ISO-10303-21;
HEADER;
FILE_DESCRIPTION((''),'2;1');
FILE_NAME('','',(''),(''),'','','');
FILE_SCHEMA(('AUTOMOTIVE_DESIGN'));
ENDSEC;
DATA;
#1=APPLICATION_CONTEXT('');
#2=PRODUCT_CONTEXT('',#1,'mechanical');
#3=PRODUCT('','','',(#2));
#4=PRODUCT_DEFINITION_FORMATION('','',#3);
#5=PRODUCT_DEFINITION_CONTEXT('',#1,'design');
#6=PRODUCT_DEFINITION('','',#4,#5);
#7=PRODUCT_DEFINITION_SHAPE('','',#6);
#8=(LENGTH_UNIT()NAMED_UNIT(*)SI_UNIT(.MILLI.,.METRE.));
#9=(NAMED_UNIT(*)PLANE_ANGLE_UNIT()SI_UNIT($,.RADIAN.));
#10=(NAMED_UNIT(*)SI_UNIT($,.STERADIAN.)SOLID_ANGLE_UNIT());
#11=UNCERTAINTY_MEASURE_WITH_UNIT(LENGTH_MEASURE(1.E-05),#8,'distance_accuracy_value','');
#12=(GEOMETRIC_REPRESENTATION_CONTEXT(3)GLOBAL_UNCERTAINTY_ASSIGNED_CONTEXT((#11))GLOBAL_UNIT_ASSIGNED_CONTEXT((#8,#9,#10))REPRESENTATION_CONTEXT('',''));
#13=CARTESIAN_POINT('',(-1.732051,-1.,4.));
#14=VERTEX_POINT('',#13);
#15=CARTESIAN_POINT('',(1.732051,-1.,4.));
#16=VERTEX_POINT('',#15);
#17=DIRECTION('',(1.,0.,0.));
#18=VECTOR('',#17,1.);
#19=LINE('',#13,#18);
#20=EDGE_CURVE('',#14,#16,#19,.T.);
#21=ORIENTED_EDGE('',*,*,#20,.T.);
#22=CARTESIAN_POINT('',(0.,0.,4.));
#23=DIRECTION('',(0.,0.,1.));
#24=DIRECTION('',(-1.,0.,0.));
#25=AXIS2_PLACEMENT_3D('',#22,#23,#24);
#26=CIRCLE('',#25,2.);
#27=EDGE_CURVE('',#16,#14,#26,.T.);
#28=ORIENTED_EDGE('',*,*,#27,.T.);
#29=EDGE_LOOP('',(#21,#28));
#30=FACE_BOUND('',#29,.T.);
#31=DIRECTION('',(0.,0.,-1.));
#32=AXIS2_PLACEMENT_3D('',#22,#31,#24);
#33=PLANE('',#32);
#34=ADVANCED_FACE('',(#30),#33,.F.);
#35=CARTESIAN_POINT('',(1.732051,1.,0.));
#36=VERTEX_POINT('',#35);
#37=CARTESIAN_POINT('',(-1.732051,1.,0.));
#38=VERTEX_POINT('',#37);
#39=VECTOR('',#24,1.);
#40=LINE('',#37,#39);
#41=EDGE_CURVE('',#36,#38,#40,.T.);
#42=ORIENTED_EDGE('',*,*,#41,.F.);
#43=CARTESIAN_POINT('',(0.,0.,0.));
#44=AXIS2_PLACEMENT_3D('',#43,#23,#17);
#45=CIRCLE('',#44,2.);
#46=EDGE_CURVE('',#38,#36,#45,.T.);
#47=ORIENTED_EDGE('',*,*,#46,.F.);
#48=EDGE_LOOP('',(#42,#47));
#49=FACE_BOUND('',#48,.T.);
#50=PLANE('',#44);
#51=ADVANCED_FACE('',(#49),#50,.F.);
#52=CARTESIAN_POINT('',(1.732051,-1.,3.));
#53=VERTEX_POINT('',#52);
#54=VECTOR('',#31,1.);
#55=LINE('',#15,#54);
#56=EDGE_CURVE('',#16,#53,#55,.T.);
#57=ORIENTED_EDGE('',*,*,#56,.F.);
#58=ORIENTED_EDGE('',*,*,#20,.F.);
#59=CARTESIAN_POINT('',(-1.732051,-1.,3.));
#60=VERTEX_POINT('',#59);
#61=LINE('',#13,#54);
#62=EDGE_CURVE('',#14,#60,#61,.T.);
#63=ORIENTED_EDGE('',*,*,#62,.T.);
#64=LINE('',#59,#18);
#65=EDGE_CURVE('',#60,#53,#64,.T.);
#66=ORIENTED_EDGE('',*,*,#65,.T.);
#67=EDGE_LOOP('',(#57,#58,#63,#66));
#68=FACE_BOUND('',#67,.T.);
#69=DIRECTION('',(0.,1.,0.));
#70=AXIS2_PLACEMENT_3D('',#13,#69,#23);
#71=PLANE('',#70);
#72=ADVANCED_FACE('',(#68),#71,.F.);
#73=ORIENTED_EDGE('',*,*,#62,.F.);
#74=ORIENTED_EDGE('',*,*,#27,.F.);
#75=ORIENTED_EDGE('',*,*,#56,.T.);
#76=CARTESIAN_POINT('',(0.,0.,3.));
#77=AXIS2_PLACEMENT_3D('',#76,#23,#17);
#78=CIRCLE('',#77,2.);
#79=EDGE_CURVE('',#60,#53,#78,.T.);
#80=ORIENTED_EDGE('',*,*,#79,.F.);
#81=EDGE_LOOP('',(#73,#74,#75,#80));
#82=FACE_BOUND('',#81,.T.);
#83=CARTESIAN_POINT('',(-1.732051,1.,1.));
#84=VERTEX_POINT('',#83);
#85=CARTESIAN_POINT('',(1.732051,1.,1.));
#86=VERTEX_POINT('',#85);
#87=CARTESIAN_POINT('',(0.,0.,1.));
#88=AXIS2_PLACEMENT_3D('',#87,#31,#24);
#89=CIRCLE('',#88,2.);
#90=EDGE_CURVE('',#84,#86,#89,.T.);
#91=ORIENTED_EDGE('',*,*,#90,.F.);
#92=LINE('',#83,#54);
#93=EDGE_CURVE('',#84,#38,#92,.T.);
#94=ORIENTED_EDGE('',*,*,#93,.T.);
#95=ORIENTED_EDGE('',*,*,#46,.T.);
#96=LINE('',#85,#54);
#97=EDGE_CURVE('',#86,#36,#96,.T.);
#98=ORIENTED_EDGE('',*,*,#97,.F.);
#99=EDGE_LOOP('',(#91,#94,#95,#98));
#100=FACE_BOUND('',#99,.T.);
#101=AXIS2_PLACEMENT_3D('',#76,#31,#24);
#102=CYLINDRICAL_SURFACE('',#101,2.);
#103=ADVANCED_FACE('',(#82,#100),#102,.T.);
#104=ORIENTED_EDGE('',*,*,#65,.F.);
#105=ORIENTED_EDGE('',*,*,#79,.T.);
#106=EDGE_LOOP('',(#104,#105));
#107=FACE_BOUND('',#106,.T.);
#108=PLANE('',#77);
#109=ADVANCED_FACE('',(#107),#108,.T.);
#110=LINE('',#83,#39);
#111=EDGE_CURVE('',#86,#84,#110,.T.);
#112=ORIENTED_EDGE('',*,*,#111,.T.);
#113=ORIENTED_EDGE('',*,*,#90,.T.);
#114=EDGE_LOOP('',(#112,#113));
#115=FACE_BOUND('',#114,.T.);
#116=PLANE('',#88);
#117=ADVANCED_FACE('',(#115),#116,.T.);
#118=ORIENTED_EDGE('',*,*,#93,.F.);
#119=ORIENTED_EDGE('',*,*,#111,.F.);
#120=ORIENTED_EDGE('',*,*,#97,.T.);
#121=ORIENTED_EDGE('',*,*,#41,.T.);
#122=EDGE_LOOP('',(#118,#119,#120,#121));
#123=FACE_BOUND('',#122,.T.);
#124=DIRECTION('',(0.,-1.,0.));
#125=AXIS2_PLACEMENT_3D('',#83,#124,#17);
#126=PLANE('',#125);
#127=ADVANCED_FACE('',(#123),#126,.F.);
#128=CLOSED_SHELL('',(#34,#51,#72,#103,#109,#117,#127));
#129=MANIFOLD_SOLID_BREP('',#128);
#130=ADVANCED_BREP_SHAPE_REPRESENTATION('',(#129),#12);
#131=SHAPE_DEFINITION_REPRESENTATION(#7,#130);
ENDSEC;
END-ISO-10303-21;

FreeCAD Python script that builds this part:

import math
import FreeCAD as App
import Part
import Sketcher
from FreeCAD import Vector

doc = App.newDocument("Part")
body = doc.addObject("PartDesign::Body", "Body")

# Sketch on XY plane
sketch1 = body.newObject("Sketcher::SketchObject", "Sketch")
sketch1.AttachmentSupport = (doc.getObject("XY_Plane"), [""])
sketch1.MapMode = "FlatFace"
sketch1.addGeometry(Part.Circle(Vector(0, 0, 0), Vector(0, 0, 1), 2), False)
sketch1.addConstraint([
    Sketcher.Constraint("Coincident", 0, 3, -1, 1),
    Sketcher.Constraint("Diameter", 0, 4.0),
])
pad1 = body.newObject("PartDesign::Pad", "Pad")
pad1.Profile = sketch1
pad1.Length = 3

# Sketch on XY plane
sketch2 = body.newObject("Sketcher::SketchObject", "Sketch001")
sketch2.AttachmentSupport = (doc.getObject("XY_Plane"), [""])
sketch2.MapMode = "FlatFace"
sketch2.AttachmentOffset = App.Placement(Vector(0, 0, 3), App.Rotation())
sketch2.addGeometry([
    Part.LineSegment(Vector(-1.7, 1, 0), Vector(1.7, 1, 0)),
    Part.ArcOfCircle(Part.Circle(Vector(0, 0, 0), Vector(0, 0, 1), 2), math.radians(30), math.radians(150)),
], False)
sketch2.addConstraint([
    Sketcher.Constraint("Coincident", 0, 1, 1, 2),
    Sketcher.Constraint("Coincident", 1, 1, 0, 2),
    Sketcher.Constraint("Horizontal", 0),
    Sketcher.Constraint("Coincident", 1, 3, -1, 1),
    Sketcher.Constraint("Radius", 1, 2.0),
    Sketcher.Constraint("DistanceY", -1, 1, 0, 1, 1.0),
])
pad2 = body.newObject("PartDesign::Pad", "Pad001")
pad2.Profile = sketch2
pad2.Length = 1

# Sketch on XY plane
sketch3 = body.newObject("Sketcher::SketchObject", "Sketch002")
sketch3.AttachmentSupport = (doc.getObject("XY_Plane"), [""])
sketch3.MapMode = "FlatFace"
sketch3.addGeometry([
    Part.LineSegment(Vector(1.7, 1, 0), Vector(-1.7, 1, 0)),
    Part.ArcOfCircle(Part.Circle(Vector(0, 0, 0), Vector(0, 0, 1), 2), math.radians(30), math.radians(150)),
], False)
sketch3.addConstraint([
    Sketcher.Constraint("Coincident", 0, 1, 1, 1),
    Sketcher.Constraint("Coincident", 1, 2, 0, 2),
    Sketcher.Constraint("Horizontal", 0),
    Sketcher.Constraint("Coincident", 1, 3, -1, 1),
    Sketcher.Constraint("Radius", 1, 2.0),
    Sketcher.Constraint("DistanceY", -1, 1, 0, 1, 1.0),
])
pocket1 = body.newObject("PartDesign::Pocket", "Pocket")
pocket1.Profile = sketch3
pocket1.Length = 1
pocket1.Reversed = True

# Sketch on XY plane
sketch4 = body.newObject("Sketcher::SketchObject", "Sketch003")
sketch4.AttachmentSupport = (doc.getObject("XY_Plane"), [""])
sketch4.MapMode = "FlatFace"
sketch4.AttachmentOffset = App.Placement(Vector(0, 0, 3), App.Rotation())
sketch4.addGeometry([
    Part.LineSegment(Vector(-1.7, -1, 0), Vector(1.7, -1, 0)),
    Part.ArcOfCircle(Part.Circle(Vector(0, 0, 0), Vector(0, 0, 1), 2), math.radians(-30), math.radians(30)),
    Part.LineSegment(Vector(1.7, 1, 0), Vector(-1.7, 1, 0)),
    Part.ArcOfCircle(Part.Circle(Vector(0, 0, 0), Vector(0, 0, 1), 2), math.radians(150), math.radians(210)),
], False)
sketch4.addConstraint([
    Sketcher.Constraint("Coincident", 0, 2, 1, 1),
    Sketcher.Constraint("Coincident", 1, 2, 2, 1),
    Sketcher.Constraint("Coincident", 2, 2, 3, 1),
    Sketcher.Constraint("Coincident", 3, 2, 0, 1),
    Sketcher.Constraint("Horizontal", 0),
    Sketcher.Constraint("Horizontal", 2),
    Sketcher.Constraint("Coincident", 1, 3, -1, 1),
    Sketcher.Constraint("Coincident", 3, 3, -1, 1),
    Sketcher.Constraint("Equal", 1, 3),
    Sketcher.Constraint("Vertical", 0, 2, 1, 2),
    Sketcher.Constraint("Radius", 1, 2.0),
    Sketcher.Constraint("DistanceY", 0, 2, -1, 1, 1.0),
])
pad3 = body.newObject("PartDesign::Pad", "Pad002")
pad3.Profile = sketch4
pad3.Length = 1

doc.recompute()
